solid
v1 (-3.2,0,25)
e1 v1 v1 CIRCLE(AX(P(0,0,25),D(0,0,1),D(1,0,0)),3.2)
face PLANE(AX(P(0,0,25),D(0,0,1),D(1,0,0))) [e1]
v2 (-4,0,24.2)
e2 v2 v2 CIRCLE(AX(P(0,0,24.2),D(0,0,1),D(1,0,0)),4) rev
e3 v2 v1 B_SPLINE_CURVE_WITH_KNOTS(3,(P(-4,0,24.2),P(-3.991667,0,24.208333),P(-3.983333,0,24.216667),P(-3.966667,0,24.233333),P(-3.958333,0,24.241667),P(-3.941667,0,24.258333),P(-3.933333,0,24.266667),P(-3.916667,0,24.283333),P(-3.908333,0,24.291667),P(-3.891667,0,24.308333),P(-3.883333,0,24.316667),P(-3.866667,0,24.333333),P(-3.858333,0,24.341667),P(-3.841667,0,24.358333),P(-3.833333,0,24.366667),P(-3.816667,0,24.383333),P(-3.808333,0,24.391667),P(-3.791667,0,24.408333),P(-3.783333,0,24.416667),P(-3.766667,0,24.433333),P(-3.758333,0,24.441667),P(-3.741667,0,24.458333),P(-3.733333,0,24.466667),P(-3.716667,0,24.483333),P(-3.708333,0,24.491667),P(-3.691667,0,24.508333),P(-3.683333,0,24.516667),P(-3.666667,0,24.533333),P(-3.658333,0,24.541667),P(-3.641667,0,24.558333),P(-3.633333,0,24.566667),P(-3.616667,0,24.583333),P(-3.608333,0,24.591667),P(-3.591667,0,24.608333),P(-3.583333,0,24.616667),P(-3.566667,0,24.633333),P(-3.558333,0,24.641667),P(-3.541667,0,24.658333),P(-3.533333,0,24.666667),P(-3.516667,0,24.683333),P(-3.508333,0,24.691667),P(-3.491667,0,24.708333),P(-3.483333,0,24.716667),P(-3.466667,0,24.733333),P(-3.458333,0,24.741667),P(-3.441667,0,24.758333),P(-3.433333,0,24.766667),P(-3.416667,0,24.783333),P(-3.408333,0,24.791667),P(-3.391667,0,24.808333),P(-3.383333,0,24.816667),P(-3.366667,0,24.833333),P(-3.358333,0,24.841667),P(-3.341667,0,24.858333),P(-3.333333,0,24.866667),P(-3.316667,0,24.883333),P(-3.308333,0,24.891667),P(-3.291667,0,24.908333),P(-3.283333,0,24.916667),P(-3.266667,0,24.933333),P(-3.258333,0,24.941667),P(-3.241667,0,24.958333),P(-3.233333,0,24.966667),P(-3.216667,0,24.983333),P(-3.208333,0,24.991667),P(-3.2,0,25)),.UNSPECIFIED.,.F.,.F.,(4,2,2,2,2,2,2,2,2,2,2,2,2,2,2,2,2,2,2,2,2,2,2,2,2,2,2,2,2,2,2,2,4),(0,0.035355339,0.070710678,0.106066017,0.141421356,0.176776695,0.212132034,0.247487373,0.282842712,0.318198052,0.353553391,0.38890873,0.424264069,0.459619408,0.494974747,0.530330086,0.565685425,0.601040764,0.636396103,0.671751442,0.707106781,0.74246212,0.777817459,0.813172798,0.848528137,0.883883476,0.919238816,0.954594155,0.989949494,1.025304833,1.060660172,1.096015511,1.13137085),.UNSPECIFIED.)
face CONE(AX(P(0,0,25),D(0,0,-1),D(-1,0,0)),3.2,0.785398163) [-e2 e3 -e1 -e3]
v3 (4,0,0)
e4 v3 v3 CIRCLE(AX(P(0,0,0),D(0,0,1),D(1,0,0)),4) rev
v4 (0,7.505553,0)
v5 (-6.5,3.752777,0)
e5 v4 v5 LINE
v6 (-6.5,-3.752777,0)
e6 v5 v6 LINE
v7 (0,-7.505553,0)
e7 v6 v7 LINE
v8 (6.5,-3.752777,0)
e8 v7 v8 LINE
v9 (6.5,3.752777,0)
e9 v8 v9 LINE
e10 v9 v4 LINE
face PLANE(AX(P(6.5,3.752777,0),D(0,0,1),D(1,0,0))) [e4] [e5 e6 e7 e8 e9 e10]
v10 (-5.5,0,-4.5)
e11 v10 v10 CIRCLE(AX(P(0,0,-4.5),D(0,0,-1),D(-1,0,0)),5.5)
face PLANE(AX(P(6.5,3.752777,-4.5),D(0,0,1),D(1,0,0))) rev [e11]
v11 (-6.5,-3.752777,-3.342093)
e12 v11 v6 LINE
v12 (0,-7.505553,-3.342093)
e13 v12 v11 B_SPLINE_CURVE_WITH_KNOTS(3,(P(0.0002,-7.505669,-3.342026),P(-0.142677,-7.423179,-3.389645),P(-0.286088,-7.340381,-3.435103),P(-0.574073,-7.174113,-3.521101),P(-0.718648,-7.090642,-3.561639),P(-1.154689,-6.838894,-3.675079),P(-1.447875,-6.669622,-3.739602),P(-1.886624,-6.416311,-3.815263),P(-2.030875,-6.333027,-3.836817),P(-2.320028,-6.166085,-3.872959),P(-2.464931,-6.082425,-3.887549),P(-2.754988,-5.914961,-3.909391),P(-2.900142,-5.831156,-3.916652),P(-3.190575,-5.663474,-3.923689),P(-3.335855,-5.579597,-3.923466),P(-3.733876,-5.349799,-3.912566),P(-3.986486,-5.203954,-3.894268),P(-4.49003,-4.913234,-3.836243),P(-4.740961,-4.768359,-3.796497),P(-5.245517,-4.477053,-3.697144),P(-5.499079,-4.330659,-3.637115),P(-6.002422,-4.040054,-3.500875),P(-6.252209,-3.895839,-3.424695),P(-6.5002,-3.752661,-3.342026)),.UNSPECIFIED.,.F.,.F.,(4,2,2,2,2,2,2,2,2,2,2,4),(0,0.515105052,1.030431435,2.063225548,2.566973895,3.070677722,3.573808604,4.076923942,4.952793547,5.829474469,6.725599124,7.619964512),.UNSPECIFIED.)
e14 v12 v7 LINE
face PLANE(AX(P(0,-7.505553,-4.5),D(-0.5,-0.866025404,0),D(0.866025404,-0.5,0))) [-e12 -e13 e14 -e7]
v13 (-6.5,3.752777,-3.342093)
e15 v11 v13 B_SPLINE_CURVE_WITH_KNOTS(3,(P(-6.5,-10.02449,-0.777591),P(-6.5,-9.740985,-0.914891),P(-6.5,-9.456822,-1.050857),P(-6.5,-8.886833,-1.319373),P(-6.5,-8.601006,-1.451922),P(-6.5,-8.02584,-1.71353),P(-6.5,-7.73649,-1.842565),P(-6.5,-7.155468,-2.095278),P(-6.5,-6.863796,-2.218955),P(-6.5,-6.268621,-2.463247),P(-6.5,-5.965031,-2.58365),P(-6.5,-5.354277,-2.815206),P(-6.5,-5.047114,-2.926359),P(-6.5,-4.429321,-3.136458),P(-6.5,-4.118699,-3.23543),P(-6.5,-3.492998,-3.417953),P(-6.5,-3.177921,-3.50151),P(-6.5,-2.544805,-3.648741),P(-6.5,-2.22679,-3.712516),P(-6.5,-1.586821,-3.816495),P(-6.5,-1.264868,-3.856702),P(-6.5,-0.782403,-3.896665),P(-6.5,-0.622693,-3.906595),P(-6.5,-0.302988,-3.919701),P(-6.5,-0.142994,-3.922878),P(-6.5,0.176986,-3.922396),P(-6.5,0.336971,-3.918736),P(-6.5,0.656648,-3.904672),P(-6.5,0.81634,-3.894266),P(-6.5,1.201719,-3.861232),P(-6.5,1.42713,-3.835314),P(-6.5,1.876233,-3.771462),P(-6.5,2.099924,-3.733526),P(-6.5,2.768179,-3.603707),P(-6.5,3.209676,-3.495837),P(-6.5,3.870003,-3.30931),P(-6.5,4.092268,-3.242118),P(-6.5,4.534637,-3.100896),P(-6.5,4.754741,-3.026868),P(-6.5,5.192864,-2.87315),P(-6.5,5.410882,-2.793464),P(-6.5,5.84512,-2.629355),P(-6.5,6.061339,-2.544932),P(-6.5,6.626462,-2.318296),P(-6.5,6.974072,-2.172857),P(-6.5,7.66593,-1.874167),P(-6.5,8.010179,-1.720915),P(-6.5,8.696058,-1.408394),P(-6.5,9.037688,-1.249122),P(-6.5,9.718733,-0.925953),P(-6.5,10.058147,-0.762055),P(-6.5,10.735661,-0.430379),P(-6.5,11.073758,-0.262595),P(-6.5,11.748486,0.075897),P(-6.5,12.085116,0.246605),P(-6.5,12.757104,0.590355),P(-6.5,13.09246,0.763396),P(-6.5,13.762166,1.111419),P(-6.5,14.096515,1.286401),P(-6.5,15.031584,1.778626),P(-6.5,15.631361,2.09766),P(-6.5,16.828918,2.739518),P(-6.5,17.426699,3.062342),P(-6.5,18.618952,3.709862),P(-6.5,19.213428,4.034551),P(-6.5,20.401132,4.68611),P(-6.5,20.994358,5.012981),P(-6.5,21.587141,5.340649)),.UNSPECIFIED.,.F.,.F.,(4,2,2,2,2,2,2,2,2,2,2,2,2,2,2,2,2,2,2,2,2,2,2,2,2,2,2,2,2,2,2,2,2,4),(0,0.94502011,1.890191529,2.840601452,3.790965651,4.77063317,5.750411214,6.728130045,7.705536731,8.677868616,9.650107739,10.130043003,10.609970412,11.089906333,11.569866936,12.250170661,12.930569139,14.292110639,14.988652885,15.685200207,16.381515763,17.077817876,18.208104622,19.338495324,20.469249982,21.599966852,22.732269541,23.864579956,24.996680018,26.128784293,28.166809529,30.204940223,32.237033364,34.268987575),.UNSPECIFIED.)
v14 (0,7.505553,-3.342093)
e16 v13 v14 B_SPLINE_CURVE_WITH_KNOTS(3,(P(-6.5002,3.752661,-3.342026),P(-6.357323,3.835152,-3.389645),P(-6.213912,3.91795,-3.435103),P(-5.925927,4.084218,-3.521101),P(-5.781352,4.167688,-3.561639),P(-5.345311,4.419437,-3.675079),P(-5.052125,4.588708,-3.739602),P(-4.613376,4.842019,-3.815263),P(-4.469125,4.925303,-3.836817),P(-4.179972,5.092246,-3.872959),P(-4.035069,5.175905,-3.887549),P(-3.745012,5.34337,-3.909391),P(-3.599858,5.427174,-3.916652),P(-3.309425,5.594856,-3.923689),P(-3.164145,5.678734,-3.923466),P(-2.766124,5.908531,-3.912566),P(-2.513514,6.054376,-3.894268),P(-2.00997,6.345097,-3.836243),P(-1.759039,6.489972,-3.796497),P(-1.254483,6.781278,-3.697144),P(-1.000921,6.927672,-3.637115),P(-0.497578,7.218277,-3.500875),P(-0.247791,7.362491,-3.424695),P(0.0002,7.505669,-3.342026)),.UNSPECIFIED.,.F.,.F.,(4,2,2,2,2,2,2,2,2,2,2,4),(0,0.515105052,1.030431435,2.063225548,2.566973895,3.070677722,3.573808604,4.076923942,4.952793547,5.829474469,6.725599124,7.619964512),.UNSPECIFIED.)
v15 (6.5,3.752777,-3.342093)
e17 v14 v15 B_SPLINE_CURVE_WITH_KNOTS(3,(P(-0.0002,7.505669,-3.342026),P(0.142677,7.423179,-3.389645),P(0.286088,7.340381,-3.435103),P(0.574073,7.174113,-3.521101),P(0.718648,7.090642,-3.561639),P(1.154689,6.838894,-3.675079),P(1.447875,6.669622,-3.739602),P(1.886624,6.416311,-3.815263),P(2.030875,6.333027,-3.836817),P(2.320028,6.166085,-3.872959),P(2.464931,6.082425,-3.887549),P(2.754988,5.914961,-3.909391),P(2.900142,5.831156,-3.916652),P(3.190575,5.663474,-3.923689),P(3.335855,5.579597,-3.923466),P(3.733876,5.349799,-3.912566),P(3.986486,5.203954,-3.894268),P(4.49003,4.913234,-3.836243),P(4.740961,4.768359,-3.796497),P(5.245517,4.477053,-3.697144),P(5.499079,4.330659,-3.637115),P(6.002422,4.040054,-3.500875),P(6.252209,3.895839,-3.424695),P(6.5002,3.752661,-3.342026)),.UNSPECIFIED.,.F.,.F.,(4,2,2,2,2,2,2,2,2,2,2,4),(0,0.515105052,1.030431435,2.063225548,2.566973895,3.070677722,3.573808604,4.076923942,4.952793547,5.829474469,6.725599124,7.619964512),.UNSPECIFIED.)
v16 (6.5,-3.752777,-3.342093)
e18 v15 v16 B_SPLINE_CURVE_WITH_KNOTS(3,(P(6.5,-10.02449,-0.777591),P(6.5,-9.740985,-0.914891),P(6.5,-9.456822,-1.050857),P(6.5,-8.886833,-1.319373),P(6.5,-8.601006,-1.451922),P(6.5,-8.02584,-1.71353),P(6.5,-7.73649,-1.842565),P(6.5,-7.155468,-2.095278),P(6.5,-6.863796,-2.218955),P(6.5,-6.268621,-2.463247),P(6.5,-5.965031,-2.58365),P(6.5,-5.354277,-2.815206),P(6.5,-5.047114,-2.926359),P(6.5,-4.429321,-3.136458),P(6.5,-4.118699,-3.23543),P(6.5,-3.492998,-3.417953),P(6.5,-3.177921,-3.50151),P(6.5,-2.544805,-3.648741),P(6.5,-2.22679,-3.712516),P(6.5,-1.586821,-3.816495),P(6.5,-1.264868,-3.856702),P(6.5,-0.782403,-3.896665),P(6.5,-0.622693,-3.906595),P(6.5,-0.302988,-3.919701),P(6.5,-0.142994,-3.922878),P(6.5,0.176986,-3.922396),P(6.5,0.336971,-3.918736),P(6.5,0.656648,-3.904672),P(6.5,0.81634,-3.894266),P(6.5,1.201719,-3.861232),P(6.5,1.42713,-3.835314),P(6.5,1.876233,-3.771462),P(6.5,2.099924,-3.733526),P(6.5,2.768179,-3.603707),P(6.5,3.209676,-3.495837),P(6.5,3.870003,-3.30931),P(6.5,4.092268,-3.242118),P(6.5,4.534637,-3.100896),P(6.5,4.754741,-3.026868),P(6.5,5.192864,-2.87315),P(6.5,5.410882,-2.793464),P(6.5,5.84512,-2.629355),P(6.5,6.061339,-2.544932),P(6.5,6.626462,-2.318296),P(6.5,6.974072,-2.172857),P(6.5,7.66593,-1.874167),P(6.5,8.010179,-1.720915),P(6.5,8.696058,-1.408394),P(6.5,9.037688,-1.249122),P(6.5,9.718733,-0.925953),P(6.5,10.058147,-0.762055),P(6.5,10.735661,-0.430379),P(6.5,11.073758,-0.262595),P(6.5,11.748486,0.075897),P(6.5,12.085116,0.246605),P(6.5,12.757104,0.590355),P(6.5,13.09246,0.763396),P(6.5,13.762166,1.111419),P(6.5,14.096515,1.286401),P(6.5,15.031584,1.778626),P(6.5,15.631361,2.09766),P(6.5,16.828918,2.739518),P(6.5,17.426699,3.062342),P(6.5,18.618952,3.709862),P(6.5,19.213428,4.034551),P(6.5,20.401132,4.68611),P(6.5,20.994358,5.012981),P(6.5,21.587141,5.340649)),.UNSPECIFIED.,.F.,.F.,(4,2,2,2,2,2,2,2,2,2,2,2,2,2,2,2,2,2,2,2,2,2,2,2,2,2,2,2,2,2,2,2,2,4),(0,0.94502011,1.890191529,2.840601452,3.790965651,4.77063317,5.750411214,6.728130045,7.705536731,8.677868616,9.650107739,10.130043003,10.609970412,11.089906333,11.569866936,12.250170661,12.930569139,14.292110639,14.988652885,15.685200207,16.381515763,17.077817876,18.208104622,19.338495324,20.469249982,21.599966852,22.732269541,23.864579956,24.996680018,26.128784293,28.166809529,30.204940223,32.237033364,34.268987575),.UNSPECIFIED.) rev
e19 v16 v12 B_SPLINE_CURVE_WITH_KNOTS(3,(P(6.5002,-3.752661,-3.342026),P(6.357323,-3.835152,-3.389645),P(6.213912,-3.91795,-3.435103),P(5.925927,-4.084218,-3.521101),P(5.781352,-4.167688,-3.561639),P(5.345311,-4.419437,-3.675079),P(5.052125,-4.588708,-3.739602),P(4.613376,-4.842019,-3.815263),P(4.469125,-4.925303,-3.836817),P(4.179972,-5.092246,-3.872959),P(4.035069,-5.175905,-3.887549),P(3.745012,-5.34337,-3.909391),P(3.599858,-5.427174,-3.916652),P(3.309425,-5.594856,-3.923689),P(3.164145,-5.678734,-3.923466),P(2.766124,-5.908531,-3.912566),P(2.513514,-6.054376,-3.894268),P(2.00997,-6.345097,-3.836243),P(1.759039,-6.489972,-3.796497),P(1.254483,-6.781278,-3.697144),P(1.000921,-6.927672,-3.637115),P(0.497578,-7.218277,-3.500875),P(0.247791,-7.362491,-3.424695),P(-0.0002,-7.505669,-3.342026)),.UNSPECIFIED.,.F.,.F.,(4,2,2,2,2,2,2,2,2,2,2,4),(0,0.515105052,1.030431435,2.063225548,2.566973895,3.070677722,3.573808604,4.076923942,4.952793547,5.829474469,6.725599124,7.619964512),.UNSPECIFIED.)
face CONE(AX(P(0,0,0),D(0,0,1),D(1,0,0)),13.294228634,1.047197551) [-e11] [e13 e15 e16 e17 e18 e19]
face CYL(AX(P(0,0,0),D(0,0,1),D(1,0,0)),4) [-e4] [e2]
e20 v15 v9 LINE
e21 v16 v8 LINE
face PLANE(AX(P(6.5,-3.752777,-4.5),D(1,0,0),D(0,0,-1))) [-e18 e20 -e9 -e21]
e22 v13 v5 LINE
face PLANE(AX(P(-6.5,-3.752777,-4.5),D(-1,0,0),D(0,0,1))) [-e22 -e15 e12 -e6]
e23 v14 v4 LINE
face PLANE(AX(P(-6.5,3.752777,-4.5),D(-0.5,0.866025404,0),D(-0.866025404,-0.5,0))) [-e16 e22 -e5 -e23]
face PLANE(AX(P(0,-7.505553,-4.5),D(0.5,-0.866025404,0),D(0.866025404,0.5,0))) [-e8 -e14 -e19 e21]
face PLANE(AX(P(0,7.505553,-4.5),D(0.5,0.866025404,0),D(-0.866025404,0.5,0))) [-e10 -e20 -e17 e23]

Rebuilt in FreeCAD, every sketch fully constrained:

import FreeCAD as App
import Part
import Sketcher
from FreeCAD import Vector
Q = App.Units.Quantity


def edges_at(feature, points):
    """Names of the edges that pass closest to the given points."""
    edges = feature.Shape.Edges
    near = lambda p: min(range(len(edges)), key=lambda i: edges[i].distToShape(Part.Vertex(*p))[0])
    return sorted({f"Edge{near(p) + 1}" for p in points})

doc = App.newDocument("Part")
body = doc.addObject("PartDesign::Body", "Body")

sketch1 = body.newObject("Sketcher::SketchObject", "Sketch")
sketch1.AttachmentSupport = (doc.getObject("XZ_Plane"), [""])
sketch1.MapMode = "FlatFace"
sketch1.addGeometry(Part.LineSegment(Vector(0, 0, 0), Vector(0, 25, 0)), False)
sketch1.addGeometry(Part.LineSegment(Vector(0, 25, 0), Vector(4, 25, 0)), False)
sketch1.addGeometry(Part.LineSegment(Vector(4, 25, 0), Vector(4, 0, 0)), False)
sketch1.addGeometry(Part.LineSegment(Vector(4, 0, 0), Vector(0, 0, 0)), False)
sketch1.addConstraint(Sketcher.Constraint("Coincident", 0, 2, 1, 1))
sketch1.addConstraint(Sketcher.Constraint("Coincident", 1, 2, 2, 1))
sketch1.addConstraint(Sketcher.Constraint("Coincident", 2, 2, 3, 1))
sketch1.addConstraint(Sketcher.Constraint("Coincident", 3, 2, 0, 1))
sketch1.addConstraint(Sketcher.Constraint("Vertical", 0))
sketch1.addConstraint(Sketcher.Constraint("Horizontal", 1))
sketch1.addConstraint(Sketcher.Constraint("Vertical", 2))
sketch1.addConstraint(Sketcher.Constraint("Horizontal", 3))
sketch1.addConstraint(Sketcher.Constraint("Coincident", 3, 2, -1, 1))
sketch1.addConstraint(Sketcher.Constraint("DistanceX", 1, 1, 1, 2, Q("4 mm")))
sketch1.addConstraint(Sketcher.Constraint("DistanceY", 0, 1, 0, 2, Q("25 mm")))
revolution = body.newObject("PartDesign::Revolution", "Revolution")
revolution.Profile = sketch1
revolution.ReferenceAxis = (sketch1, ["V_Axis"])
revolution.Angle = 360
doc.recompute()

chamfer = body.newObject("PartDesign::Chamfer", "Chamfer")
chamfer.Base = (revolution, edges_at(revolution, [(-4, 0, 25)]))
chamfer.Size = 0.8

sketch2 = body.newObject("Sketcher::SketchObject", "Sketch001")
sketch2.AttachmentSupport = (doc.getObject("XY_Plane"), [""])
sketch2.MapMode = "FlatFace"
sketch2.addGeometry(Part.LineSegment(Vector(6, -4, 0), Vector(6, 4, 0)), False)
sketch2.addGeometry(Part.LineSegment(Vector(6, 4, 0), Vector(0, 8, 0)), False)
sketch2.addGeometry(Part.LineSegment(Vector(0, 8, 0), Vector(-6, 4, 0)), False)
sketch2.addGeometry(Part.LineSegment(Vector(-6, 4, 0), Vector(-6, -4, 0)), False)
sketch2.addGeometry(Part.LineSegment(Vector(-6, -4, 0), Vector(0, -8, 0)), False)
sketch2.addGeometry(Part.LineSegment(Vector(0, -8, 0), Vector(6, -4, 0)), False)
sketch2.addConstraint(Sketcher.Constraint("Coincident", 0, 2, 1, 1))
sketch2.addConstraint(Sketcher.Constraint("Coincident", 1, 2, 2, 1))
sketch2.addConstraint(Sketcher.Constraint("Coincident", 2, 2, 3, 1))
sketch2.addConstraint(Sketcher.Constraint("Coincident", 3, 2, 4, 1))
sketch2.addConstraint(Sketcher.Constraint("Coincident", 4, 2, 5, 1))
sketch2.addConstraint(Sketcher.Constraint("Coincident", 5, 2, 0, 1))
sketch2.addConstraint(Sketcher.Constraint("Vertical", 0))
sketch2.addConstraint(Sketcher.Constraint("Vertical", 3))
sketch2.addConstraint(Sketcher.Constraint("Symmetric", 0, 2, 3, 2, -1, 1))
sketch2.addConstraint(Sketcher.Constraint("Symmetric", 1, 2, 4, 2, -1, 1))
sketch2.addConstraint(Sketcher.Constraint("PointOnObject", 1, 2, -2))
sketch2.addConstraint(Sketcher.Constraint("Parallel", 2, 5))
sketch2.addConstraint(Sketcher.Constraint("Horizontal", 0, 2, 2, 2))
sketch2.addConstraint(Sketcher.Constraint("Angle", 1, Q("150 deg")))
sketch2.addConstraint(Sketcher.Constraint("DistanceX", 2, 2, 0, 2, Q("13 mm")))
sketch2.addConstraint(Sketcher.Constraint("DistanceY", 0, 1, 0, 2, Q("7.505554 mm")))
pad1 = body.newObject("PartDesign::Pad", "Pad")
pad1.Profile = sketch2
pad1.Length = 4.5
pad1.Reversed = True

sketch3 = body.newObject("Sketcher::SketchObject", "Sketch002")
sketch3.AttachmentSupport = (doc.getObject("XZ_Plane"), [""])
sketch3.MapMode = "FlatFace"
sketch3.addGeometry(Part.LineSegment(Vector(-5.5, -4.5, 0), Vector(-13.3, -4.5, 0)), False)
sketch3.addGeometry(Part.LineSegment(Vector(-13.3, -4.5, 0), Vector(-13.3, 0, 0)), False)
sketch3.addGeometry(Part.LineSegment(Vector(-13.3, 0, 0), Vector(-5.5, -4.5, 0)), False)
sketch3.addConstraint(Sketcher.Constraint("Coincident", 0, 2, 1, 1))
sketch3.addConstraint(Sketcher.Constraint("Coincident", 1, 2, 2, 1))
sketch3.addConstraint(Sketcher.Constraint("Coincident", 2, 2, 0, 1))
sketch3.addConstraint(Sketcher.Constraint("Horizontal", 0))
sketch3.addConstraint(Sketcher.Constraint("Vertical", 1))
sketch3.addConstraint(Sketcher.Constraint("PointOnObject", 1, 2, -1))
sketch3.addConstraint(Sketcher.Constraint("Angle", 2, Q("-30 deg")))
sketch3.addConstraint(Sketcher.Constraint("Distance", 2, Q("9 mm")))
sketch3.addConstraint(Sketcher.Constraint("DistanceX", 2, 2, -1, 1, Q("5.5 mm")))
groove = body.newObject("PartDesign::Groove", "Groove")
groove.Profile = sketch3
groove.ReferenceAxis = (sketch3, ["V_Axis"])
groove.Angle = 360

doc.recompute()
